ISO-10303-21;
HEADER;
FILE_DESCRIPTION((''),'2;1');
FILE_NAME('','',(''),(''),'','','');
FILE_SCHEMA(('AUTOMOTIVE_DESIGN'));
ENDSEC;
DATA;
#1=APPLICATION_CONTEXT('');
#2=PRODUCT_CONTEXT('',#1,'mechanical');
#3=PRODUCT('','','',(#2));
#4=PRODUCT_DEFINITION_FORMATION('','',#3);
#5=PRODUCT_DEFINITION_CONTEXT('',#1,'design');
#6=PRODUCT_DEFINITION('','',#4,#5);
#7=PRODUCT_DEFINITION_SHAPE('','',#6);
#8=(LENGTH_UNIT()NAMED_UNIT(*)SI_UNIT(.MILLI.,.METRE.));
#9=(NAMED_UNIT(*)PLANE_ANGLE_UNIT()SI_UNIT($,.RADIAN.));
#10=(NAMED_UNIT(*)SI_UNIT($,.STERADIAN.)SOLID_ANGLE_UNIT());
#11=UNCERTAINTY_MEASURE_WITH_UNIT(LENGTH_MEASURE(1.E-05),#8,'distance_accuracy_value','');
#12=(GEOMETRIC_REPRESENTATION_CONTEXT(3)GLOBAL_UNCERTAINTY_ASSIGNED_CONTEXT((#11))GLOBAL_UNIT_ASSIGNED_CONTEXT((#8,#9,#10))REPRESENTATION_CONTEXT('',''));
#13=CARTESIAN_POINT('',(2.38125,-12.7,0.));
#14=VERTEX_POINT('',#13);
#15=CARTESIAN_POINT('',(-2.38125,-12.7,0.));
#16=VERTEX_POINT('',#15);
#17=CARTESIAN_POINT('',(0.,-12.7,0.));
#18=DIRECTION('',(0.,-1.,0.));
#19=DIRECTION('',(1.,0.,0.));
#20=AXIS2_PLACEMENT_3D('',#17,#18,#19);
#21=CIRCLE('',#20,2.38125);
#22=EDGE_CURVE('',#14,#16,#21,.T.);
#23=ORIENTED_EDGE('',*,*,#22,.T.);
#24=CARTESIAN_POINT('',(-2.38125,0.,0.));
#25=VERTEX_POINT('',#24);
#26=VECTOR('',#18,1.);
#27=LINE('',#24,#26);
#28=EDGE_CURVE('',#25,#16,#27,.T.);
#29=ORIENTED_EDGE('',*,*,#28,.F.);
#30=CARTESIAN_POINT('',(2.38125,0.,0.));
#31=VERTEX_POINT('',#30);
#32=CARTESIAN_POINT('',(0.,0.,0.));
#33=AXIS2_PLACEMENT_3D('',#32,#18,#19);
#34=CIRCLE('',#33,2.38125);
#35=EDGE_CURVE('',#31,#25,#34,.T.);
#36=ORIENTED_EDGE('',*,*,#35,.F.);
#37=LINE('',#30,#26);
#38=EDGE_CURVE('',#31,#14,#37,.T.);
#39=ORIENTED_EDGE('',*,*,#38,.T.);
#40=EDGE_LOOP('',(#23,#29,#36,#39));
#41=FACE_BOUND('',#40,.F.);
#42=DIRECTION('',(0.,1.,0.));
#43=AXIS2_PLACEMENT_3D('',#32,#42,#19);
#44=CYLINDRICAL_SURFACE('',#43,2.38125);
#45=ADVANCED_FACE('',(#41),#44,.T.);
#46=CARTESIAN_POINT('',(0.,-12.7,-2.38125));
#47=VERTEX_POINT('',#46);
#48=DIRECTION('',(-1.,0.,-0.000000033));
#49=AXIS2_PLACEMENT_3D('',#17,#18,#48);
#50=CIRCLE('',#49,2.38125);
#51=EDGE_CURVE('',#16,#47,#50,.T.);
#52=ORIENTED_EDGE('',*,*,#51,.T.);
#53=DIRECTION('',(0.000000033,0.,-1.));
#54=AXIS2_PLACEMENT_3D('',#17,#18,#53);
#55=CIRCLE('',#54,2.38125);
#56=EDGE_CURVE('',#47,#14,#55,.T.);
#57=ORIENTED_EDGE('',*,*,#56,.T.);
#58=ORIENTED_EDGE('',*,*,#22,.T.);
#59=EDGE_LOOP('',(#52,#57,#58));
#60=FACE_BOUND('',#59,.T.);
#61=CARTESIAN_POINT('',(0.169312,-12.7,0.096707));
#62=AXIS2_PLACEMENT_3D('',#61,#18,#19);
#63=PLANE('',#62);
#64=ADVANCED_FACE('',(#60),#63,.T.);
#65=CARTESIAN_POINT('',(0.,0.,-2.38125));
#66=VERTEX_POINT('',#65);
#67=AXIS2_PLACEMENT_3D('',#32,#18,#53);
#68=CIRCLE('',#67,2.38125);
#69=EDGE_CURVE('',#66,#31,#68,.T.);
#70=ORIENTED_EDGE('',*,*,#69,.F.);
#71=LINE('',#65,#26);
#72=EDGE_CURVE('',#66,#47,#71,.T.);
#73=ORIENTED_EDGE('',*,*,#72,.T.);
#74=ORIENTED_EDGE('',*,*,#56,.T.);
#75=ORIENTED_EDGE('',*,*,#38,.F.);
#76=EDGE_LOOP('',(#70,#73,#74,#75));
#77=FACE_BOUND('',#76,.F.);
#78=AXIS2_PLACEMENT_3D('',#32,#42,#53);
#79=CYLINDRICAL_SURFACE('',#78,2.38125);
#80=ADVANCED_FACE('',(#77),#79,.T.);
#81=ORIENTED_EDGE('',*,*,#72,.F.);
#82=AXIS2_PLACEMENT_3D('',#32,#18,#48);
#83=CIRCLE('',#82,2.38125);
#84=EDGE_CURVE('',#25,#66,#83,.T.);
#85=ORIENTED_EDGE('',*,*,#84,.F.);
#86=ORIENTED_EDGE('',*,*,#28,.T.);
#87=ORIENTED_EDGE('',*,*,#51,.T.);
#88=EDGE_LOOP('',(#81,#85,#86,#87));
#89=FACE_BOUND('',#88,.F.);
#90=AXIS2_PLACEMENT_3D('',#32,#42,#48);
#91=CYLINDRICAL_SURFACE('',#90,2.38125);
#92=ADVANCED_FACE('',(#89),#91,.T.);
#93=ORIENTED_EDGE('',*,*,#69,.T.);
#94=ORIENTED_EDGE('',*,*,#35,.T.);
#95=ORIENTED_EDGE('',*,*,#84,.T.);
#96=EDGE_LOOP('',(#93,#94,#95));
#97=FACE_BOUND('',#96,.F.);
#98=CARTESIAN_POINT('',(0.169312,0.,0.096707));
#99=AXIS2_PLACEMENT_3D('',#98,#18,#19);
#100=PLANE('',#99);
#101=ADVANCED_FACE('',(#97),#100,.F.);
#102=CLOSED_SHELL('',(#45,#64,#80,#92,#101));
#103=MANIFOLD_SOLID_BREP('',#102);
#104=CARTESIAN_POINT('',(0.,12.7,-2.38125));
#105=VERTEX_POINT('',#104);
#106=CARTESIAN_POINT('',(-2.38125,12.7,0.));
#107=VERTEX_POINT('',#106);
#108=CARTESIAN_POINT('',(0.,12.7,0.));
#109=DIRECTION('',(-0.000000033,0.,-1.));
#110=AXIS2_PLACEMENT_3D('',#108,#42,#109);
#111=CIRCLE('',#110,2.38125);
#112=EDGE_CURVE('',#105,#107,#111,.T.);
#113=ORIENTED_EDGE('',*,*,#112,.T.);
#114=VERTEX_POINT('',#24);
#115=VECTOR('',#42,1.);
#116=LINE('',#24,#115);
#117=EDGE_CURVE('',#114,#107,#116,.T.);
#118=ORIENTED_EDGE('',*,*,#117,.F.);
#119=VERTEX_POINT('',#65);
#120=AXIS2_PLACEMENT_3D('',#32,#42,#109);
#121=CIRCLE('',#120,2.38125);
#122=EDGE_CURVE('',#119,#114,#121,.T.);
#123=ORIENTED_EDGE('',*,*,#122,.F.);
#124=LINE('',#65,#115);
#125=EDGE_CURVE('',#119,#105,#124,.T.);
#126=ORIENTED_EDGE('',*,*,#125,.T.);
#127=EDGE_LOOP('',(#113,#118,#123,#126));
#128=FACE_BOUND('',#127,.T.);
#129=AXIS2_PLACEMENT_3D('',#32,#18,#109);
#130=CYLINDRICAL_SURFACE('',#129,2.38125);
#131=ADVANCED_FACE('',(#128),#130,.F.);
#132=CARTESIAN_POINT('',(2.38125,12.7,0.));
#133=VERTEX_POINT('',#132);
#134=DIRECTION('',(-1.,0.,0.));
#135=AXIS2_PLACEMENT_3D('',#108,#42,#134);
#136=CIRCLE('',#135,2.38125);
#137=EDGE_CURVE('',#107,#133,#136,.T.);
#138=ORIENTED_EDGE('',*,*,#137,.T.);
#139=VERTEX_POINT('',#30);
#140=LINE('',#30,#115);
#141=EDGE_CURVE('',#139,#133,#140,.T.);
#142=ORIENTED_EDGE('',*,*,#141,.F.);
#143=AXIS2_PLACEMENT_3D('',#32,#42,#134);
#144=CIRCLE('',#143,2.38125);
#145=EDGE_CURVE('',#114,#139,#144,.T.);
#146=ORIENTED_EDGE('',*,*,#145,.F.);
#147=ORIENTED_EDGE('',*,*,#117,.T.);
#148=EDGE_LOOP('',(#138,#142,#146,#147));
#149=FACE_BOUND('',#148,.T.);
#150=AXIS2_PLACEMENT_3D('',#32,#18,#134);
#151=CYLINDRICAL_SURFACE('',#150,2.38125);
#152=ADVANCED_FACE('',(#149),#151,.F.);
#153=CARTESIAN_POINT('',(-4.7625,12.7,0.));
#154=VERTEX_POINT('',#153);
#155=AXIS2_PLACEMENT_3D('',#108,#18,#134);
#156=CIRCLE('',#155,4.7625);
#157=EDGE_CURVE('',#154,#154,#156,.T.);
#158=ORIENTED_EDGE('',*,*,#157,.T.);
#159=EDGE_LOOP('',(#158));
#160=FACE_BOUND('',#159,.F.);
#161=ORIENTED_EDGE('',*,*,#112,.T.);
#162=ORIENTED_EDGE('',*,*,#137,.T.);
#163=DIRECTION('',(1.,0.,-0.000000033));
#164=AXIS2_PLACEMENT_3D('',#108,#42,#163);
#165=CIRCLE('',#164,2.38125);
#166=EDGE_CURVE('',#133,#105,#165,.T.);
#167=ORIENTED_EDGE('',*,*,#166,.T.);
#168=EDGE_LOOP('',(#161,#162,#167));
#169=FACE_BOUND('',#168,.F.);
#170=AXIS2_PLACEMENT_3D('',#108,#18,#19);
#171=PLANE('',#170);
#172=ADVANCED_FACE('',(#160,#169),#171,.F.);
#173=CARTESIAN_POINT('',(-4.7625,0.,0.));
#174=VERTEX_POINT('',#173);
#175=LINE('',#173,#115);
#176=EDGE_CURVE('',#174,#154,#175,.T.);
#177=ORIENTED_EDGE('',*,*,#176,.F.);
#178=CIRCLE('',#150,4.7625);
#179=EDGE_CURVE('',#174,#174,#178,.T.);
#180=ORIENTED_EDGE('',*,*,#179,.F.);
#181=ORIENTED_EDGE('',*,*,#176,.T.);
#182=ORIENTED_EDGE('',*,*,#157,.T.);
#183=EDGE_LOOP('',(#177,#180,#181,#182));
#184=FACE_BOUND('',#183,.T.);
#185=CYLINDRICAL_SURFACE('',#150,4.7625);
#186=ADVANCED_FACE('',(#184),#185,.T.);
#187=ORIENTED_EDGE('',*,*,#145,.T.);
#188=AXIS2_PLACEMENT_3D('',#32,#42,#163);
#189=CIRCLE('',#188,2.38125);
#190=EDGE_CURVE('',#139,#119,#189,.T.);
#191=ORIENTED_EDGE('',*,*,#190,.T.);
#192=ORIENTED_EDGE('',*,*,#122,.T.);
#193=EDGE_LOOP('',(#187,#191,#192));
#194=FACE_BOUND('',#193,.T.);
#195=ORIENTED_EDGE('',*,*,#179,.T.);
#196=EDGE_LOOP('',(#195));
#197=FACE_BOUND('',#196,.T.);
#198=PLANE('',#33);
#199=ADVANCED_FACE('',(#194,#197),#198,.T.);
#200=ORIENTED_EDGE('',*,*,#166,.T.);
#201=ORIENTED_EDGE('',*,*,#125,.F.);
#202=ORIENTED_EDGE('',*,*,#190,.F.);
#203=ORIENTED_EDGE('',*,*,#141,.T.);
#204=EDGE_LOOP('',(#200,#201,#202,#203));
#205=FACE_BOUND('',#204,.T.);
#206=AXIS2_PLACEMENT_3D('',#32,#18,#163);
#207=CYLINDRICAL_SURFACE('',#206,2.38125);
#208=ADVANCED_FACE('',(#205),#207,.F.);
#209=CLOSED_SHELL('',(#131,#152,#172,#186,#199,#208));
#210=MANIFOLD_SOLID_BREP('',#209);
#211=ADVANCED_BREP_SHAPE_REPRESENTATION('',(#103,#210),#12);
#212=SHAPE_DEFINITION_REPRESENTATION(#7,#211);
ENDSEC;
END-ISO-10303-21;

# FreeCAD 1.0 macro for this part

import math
import FreeCAD as App
import Part
import Sketcher
from FreeCAD import Vector
Q = App.Units.Quantity

doc = App.newDocument("Part")
body = doc.addObject("PartDesign::Body", "Body")

# Sketch on XZ plane
sketch1 = body.newObject("Sketcher::SketchObject", "Sketch")
sketch1.AttachmentSupport = (doc.getObject("XZ_Plane"), [""])
sketch1.MapMode = "FlatFace"
sketch1.addGeometry([
    Part.Circle(Vector(0, 0, 0), Vector(0, 0, 1), 4.8),
    Part.ArcOfCircle(Part.Circle(Vector(0, 0, 0), Vector(0, 0, 1), 2.4), math.radians(-90), math.radians(0)),
    Part.ArcOfCircle(Part.Circle(Vector(0, 0, 0), Vector(0, 0, 1), 2.4), math.radians(-180), math.radians(-90)),
    Part.ArcOfCircle(Part.Circle(Vector(0, 0, 0), Vector(0, 0, 1), 2.4), math.radians(0), math.radians(180)),
], False)
sketch1.addConstraint([
    Sketcher.Constraint("Tangent", 1, 1, 2, 2),
    Sketcher.Constraint("Tangent", 2, 1, 3, 2),
    Sketcher.Constraint("Tangent", 3, 1, 1, 2),
    Sketcher.Constraint("Coincident", 0, 3, -1, 1),
    Sketcher.Constraint("Coincident", 1, 3, -1, 1),
    Sketcher.Constraint("PointOnObject", 1, 1, -2),
    Sketcher.Constraint("PointOnObject", 2, 1, -1),
    Sketcher.Constraint("PointOnObject", 3, 1, -1),
    Sketcher.Constraint("Diameter", 0, Q("0.375 in")),
    Sketcher.Constraint("Radius", 1, Q("0.09375 in")),
])
pad1 = body.newObject("PartDesign::Pad", "Pad")
pad1.Profile = sketch1
pad1.Length = Q("0.5 in")
pad1.Reversed = True
body2 = doc.addObject("PartDesign::Body", "Body001")

# Sketch on XZ plane
sketch2 = body2.newObject("Sketcher::SketchObject", "Sketch001")
sketch2.AttachmentSupport = (doc.getObject("XZ_Plane001"), [""])
sketch2.MapMode = "FlatFace"
sketch2.addGeometry([
    Part.ArcOfCircle(Part.Circle(Vector(0, 0, 0), Vector(0, 0, 1), 2.4), math.radians(-90), math.radians(0)),
    Part.ArcOfCircle(Part.Circle(Vector(0, 0, 0), Vector(0, 0, 1), 2.4), math.radians(0), math.radians(180)),
    Part.ArcOfCircle(Part.Circle(Vector(0, 0, 0), Vector(0, 0, 1), 2.4), math.radians(-180), math.radians(-90)),
], False)
sketch2.addConstraint([
    Sketcher.Constraint("Tangent", 0, 2, 1, 1),
    Sketcher.Constraint("Tangent", 1, 2, 2, 1),
    Sketcher.Constraint("Tangent", 2, 2, 0, 1),
    Sketcher.Constraint("Coincident", 0, 3, -1, 1),
    Sketcher.Constraint("PointOnObject", 0, 2, -1),
    Sketcher.Constraint("PointOnObject", 1, 2, -1),
    Sketcher.Constraint("PointOnObject", 2, 2, -2),
    Sketcher.Constraint("Radius", 0, Q("0.09375 in")),
])
pad2 = body2.newObject("PartDesign::Pad", "Pad001")
pad2.Profile = sketch2
pad2.Length = Q("0.5 in")

doc.recompute()
